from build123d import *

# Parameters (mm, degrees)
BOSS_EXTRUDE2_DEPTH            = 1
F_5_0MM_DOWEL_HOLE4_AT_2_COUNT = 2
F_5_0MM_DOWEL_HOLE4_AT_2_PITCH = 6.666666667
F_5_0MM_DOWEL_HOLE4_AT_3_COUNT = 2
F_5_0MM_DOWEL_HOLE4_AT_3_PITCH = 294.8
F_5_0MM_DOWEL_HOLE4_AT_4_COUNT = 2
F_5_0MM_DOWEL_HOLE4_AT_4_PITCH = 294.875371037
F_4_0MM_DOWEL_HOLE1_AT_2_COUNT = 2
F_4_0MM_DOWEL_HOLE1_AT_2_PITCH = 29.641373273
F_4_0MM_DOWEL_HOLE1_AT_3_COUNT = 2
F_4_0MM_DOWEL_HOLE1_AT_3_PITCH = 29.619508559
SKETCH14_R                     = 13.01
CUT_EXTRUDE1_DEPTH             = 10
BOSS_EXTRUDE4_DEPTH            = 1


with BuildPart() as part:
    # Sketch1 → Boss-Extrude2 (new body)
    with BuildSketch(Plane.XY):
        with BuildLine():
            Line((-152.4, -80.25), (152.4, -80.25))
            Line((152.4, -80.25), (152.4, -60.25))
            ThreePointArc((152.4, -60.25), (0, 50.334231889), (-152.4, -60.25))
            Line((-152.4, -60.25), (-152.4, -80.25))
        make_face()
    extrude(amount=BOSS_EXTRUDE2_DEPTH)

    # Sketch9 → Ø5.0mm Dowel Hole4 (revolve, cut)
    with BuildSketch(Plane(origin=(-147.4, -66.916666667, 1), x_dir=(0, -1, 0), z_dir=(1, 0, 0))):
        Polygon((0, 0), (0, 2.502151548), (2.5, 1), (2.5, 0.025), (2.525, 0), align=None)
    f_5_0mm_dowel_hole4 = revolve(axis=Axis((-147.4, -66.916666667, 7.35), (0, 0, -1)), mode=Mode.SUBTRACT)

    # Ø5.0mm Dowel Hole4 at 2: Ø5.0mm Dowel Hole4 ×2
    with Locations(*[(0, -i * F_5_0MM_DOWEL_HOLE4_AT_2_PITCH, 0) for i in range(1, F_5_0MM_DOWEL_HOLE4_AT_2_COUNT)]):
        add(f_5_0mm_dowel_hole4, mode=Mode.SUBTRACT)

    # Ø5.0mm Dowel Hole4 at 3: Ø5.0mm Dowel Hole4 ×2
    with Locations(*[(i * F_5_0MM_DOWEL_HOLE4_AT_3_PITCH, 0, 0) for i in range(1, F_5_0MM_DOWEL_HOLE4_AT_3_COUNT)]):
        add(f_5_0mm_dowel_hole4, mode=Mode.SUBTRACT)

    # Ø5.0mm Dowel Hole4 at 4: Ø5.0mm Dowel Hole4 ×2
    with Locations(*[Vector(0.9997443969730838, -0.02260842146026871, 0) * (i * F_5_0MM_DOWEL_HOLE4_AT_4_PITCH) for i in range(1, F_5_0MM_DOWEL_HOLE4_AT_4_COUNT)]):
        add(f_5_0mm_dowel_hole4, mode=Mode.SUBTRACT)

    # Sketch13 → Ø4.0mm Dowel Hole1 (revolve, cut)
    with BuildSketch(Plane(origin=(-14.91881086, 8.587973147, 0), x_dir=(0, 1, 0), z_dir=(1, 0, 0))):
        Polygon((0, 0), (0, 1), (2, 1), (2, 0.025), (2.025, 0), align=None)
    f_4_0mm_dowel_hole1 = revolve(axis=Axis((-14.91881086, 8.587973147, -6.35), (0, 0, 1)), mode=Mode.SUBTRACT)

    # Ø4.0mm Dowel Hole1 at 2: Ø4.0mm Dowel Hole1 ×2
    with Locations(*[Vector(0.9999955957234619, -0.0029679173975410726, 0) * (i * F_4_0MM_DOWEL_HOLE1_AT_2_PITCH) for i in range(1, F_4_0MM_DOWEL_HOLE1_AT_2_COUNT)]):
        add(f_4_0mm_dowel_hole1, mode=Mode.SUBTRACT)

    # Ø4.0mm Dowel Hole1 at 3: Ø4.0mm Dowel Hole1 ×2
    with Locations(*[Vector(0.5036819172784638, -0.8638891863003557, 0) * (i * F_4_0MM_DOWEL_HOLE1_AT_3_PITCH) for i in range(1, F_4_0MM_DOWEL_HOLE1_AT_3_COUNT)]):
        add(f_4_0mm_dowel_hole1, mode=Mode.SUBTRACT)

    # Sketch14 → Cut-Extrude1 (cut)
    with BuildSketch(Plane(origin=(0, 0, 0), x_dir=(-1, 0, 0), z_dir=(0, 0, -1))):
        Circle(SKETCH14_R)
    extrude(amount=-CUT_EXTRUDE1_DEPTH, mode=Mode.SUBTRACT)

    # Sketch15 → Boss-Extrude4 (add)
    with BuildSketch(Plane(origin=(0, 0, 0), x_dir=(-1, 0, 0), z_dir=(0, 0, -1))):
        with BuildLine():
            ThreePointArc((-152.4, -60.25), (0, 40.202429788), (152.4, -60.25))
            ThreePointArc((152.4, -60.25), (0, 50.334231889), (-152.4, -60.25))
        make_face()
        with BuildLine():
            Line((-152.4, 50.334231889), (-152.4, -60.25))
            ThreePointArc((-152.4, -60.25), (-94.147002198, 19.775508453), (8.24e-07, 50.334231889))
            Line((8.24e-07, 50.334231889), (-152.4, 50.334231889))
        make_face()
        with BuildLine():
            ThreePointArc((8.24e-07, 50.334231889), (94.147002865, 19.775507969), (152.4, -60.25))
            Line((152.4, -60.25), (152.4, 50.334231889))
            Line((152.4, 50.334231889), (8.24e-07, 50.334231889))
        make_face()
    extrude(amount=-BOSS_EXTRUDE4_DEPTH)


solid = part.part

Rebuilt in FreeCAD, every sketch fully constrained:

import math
import FreeCAD as App
import Part
import Sketcher

V = App.Vector
Q = App.Units.Quantity


def add_polygon(sketch, points):
    """Adds a closed chain of lines whose ends are joined by coincident constraints."""
    first, n = sketch.GeometryCount, len(points)
    for a, b in zip(points, points[1:] + points[:1]):
        sketch.addGeometry(Part.LineSegment(App.Vector(*a, 0), App.Vector(*b, 0)), False)
    for i in range(n):
        sketch.addConstraint(Sketcher.Constraint("Coincident", first + i, 2, first + (i + 1) % n, 1))

doc = App.newDocument("Part")
body = doc.addObject("PartDesign::Body", "Body")

# Sketch on XY plane
sketch1 = doc.addObject("Sketcher::SketchObject", "Sketch")
body.addObject(sketch1)
sketch1.AttachmentSupport = (doc.XY_Plane, [""])
sketch1.MapMode = "FlatFace"
sketch1.addGeometry([
    Part.LineSegment(V(-152, -80, 0), V(152, -80, 0)),
    Part.LineSegment(V(152, -80, 0), V(152, -60, 0)),
    Part.ArcOfCircle(Part.Circle(V(0, -110, 0), V(0, 0, 1), 160), math.radians(18), math.radians(162)),
    Part.LineSegment(V(-152, -60, 0), V(-152, -80, 0)),
], False)
sketch1.addConstraint([
    Sketcher.Constraint("Coincident", 0, 2, 1, 1),
    Sketcher.Constraint("Coincident", 1, 2, 2, 1),
    Sketcher.Constraint("Coincident", 2, 2, 3, 1),
    Sketcher.Constraint("Coincident", 3, 2, 0, 1),
    Sketcher.Constraint("Horizontal", 0),
    Sketcher.Constraint("Vertical", 1),
    Sketcher.Constraint("Vertical", 3),
    Sketcher.Constraint("Symmetric", 1, 2, 2, 2, -2),
    Sketcher.Constraint("DistanceY", 1, 1, 1, 2, Q("20 mm")),
    Sketcher.Constraint("DistanceX", 0, 1, 0, 2, Q("304.8 mm")),
    Sketcher.Constraint("DistanceY", 0, 2, -1, 1, Q("80.25 mm")),
    Sketcher.Constraint("Radius", 2, Q("160.306003 mm")),
])
pad1 = doc.addObject("PartDesign::Pad", "Pad")
body.addObject(pad1)
pad1.Profile = sketch1
pad1.Length = 1

# Sketch on YZ plane
sketch2 = doc.addObject("Sketcher::SketchObject", "Sketch001")
body.addObject(sketch2)
sketch2.AttachmentSupport = (doc.YZ_Plane, [""])
sketch2.MapMode = "FlatFace"
sketch2.AttachmentOffset = App.Placement(V(0, 0, -147.4), App.Rotation())
add_polygon(sketch2, [(-66.917, -1.502), (-66.917, 1), (-69.442, 1), (-69.417, 0.975), (-69.417, 0)])  # lines 0-4
sketch2.addGeometry(Part.LineSegment(V(-66.917, 1, 0), V(-66.917, -1.502, 0)), True)  # axis
sketch2.addConstraint([
    Sketcher.Constraint("Vertical", 0),
    Sketcher.Constraint("Horizontal", 1),
    Sketcher.Constraint("Vertical", 3),
    Sketcher.Constraint("Vertical", 5),
    Sketcher.Constraint("Coincident", 5, 1, 0, 2),
    Sketcher.Constraint("PointOnObject", 3, 2, -1),
    Sketcher.Constraint("Equal", 0, 5),
    Sketcher.Constraint("Angle", 2, Q("-45 deg")),
    Sketcher.Constraint("Angle", 4, Q("-31 deg")),
    Sketcher.Constraint("DistanceY", -1, 1, 0, 2, Q("1 mm")),
    Sketcher.Constraint("DistanceX", 2, 2, 0, 2, Q("2.5 mm")),
    Sketcher.Constraint("DistanceX", 1, 2, 1, 1, Q("2.525 mm")),
    Sketcher.Constraint("DistanceX", 0, 2, -1, 1, Q("66.916667 mm")),
])
groove = doc.addObject("PartDesign::Groove", "Groove")
body.addObject(groove)
groove.Profile = sketch2
groove.ReferenceAxis = (sketch2, ["Axis0"])
groove.Angle = 360
doc.recompute()

linearpattern = doc.addObject("PartDesign::LinearPattern", "LinearPattern")
body.addObject(linearpattern)
linearpattern.Originals = [groove]
linearpattern.Direction = (doc.Y_Axis, [""])
linearpattern.Mode = "offset"
linearpattern.Offset = 6.666667
linearpattern.Occurrences = 2
linearpattern.Reversed = True
body.Tip = linearpattern
doc.recompute()

linearpattern2 = doc.addObject("PartDesign::LinearPattern", "LinearPattern001")
body.addObject(linearpattern2)
linearpattern2.Originals = [groove]
linearpattern2.Direction = (doc.X_Axis, [""])
linearpattern2.Mode = "offset"
linearpattern2.Offset = 294.8
linearpattern2.Occurrences = 2
body.Tip = linearpattern2
doc.recompute()

datumline = doc.addObject("PartDesign::Line", "DatumLine")
body.addObject(datumline)
datumline.Placement = App.Placement(V(0, 0, 0), App.Rotation(V(0, 0, 1), V(0.999744397, -0.022608421, 0)))
linearpattern3 = doc.addObject("PartDesign::LinearPattern", "LinearPattern002")
body.addObject(linearpattern3)
linearpattern3.Originals = [groove]
linearpattern3.Direction = (datumline, [""])
linearpattern3.Mode = "offset"
linearpattern3.Offset = 294.875371
linearpattern3.Occurrences = 2
body.Tip = linearpattern3

# Sketch on YZ plane
sketch3 = doc.addObject("Sketcher::SketchObject", "Sketch002")
body.addObject(sketch3)
sketch3.AttachmentSupport = (doc.YZ_Plane, [""])
sketch3.MapMode = "FlatFace"
sketch3.AttachmentOffset = App.Placement(V(0, 0, -14.918811), App.Rotation())
add_polygon(sketch3, [(8.588, 1), (8.588, 0), (10.613, 0), (10.588, 0.025), (10.588, 1)])  # lines 0-4
sketch3.addGeometry(Part.LineSegment(V(8.588, 0, 0), V(8.588, 1, 0)), True)  # axis
sketch3.addConstraint([
    Sketcher.Constraint("Vertical", 0),
    Sketcher.Constraint("Horizontal", 1),
    Sketcher.Constraint("Vertical", 3),
    Sketcher.Constraint("Horizontal", 4),
    Sketcher.Constraint("Vertical", 5),
    Sketcher.Constraint("Coincident", 5, 1, 0, 2),
    Sketcher.Constraint("PointOnObject", 0, 2, -1),
    Sketcher.Constraint("Horizontal", 3, 2, 5, 2),
    Sketcher.Constraint("DistanceX", 4, 2, 4, 1, Q("2 mm")),
    Sketcher.Constraint("DistanceY", 0, 2, 0, 1, Q("1 mm")),
    Sketcher.Constraint("Angle", 2, Q("135 deg")),
    Sketcher.Constraint("DistanceX", 1, 1, 1, 2, Q("2.025 mm")),
    Sketcher.Constraint("DistanceX", -1, 1, 0, 2, Q("8.587973 mm")),
])
groove2 = doc.addObject("PartDesign::Groove", "Groove001")
body.addObject(groove2)
groove2.Profile = sketch3
groove2.ReferenceAxis = (sketch3, ["Axis0"])
groove2.Angle = 360
doc.recompute()

datumline2 = doc.addObject("PartDesign::Line", "DatumLine001")
body.addObject(datumline2)
datumline2.Placement = App.Placement(V(0, 0, 0), App.Rotation(V(0, 0, 1), V(0.999995596, -0.002967917, 0)))
linearpattern4 = doc.addObject("PartDesign::LinearPattern", "LinearPattern003")
body.addObject(linearpattern4)
linearpattern4.Originals = [groove2]
linearpattern4.Direction = (datumline2, [""])
linearpattern4.Mode = "offset"
linearpattern4.Offset = 29.641373
linearpattern4.Occurrences = 2
body.Tip = linearpattern4
doc.recompute()

datumline3 = doc.addObject("PartDesign::Line", "DatumLine002")
body.addObject(datumline3)
datumline3.Placement = App.Placement(V(0, 0, 0), App.Rotation(V(0, 0, 1), V(0.503681917, -0.863889186, 0)))
linearpattern5 = doc.addObject("PartDesign::LinearPattern", "LinearPattern004")
body.addObject(linearpattern5)
linearpattern5.Originals = [groove2]
linearpattern5.Direction = (datumline3, [""])
linearpattern5.Mode = "offset"
linearpattern5.Offset = 29.619509
linearpattern5.Occurrences = 2
body.Tip = linearpattern5

# Sketch on XY plane
sketch4 = doc.addObject("Sketcher::SketchObject", "Sketch003")
body.addObject(sketch4)
sketch4.AttachmentSupport = (doc.XY_Plane, [""])
sketch4.MapMode = "FlatFace"
sketch4.addGeometry(Part.Circle(V(0, 0, 0), V(0, 0, 1), 13), False)
sketch4.addConstraint([
    Sketcher.Constraint("Coincident", 0, 3, -1, 1),
    Sketcher.Constraint("Diameter", 0, Q("26.02 mm")),
])
pocket1 = doc.addObject("PartDesign::Pocket", "Pocket")
body.addObject(pocket1)
pocket1.Profile = sketch4
pocket1.Length = 10
pocket1.Reversed = True

# Sketch on XY plane
sketch5 = doc.addObject("Sketcher::SketchObject", "Sketch004")
body.addObject(sketch5)
sketch5.AttachmentSupport = (doc.XY_Plane, [""])
sketch5.MapMode = "FlatFace"
sketch5.addGeometry([
    Part.ArcOfCircle(Part.Circle(V(0, -126, 0), V(0, 0, 1), 166), math.radians(23), math.radians(157)),
    Part.LineSegment(V(-152, -60, 0), V(-152, 50, 0)),
    Part.LineSegment(V(-152, 50, 0), V(152, 50, 0)),
    Part.LineSegment(V(152, 50, 0), V(152, -60, 0)),
], False)
sketch5.addConstraint([
    Sketcher.Constraint("Coincident", 0, 2, 1, 1),
    Sketcher.Constraint("Coincident", 1, 2, 2, 1),
    Sketcher.Constraint("Coincident", 2, 2, 3, 1),
    Sketcher.Constraint("Coincident", 3, 2, 0, 1),
    Sketcher.Constraint("Vertical", 1),
    Sketcher.Constraint("Horizontal", 2),
    Sketcher.Constraint("Vertical", 3),
    Sketcher.Constraint("Symmetric", 0, 2, 3, 2, -2),
    Sketcher.Constraint("DistanceX", 2, 1, 2, 2, Q("304.8 mm")),
    Sketcher.Constraint("DistanceY", 0, 2, -1, 1, Q("60.25 mm")),
    Sketcher.Constraint("Radius", 0, Q("165.83198 mm")),
    Sketcher.Constraint("DistanceY", 1, 1, 1, 2, Q("110.584232 mm")),
])
pad2 = doc.addObject("PartDesign::Pad", "Pad001")
body.addObject(pad2)
pad2.Profile = sketch5
pad2.Length = 1

doc.recompute()
